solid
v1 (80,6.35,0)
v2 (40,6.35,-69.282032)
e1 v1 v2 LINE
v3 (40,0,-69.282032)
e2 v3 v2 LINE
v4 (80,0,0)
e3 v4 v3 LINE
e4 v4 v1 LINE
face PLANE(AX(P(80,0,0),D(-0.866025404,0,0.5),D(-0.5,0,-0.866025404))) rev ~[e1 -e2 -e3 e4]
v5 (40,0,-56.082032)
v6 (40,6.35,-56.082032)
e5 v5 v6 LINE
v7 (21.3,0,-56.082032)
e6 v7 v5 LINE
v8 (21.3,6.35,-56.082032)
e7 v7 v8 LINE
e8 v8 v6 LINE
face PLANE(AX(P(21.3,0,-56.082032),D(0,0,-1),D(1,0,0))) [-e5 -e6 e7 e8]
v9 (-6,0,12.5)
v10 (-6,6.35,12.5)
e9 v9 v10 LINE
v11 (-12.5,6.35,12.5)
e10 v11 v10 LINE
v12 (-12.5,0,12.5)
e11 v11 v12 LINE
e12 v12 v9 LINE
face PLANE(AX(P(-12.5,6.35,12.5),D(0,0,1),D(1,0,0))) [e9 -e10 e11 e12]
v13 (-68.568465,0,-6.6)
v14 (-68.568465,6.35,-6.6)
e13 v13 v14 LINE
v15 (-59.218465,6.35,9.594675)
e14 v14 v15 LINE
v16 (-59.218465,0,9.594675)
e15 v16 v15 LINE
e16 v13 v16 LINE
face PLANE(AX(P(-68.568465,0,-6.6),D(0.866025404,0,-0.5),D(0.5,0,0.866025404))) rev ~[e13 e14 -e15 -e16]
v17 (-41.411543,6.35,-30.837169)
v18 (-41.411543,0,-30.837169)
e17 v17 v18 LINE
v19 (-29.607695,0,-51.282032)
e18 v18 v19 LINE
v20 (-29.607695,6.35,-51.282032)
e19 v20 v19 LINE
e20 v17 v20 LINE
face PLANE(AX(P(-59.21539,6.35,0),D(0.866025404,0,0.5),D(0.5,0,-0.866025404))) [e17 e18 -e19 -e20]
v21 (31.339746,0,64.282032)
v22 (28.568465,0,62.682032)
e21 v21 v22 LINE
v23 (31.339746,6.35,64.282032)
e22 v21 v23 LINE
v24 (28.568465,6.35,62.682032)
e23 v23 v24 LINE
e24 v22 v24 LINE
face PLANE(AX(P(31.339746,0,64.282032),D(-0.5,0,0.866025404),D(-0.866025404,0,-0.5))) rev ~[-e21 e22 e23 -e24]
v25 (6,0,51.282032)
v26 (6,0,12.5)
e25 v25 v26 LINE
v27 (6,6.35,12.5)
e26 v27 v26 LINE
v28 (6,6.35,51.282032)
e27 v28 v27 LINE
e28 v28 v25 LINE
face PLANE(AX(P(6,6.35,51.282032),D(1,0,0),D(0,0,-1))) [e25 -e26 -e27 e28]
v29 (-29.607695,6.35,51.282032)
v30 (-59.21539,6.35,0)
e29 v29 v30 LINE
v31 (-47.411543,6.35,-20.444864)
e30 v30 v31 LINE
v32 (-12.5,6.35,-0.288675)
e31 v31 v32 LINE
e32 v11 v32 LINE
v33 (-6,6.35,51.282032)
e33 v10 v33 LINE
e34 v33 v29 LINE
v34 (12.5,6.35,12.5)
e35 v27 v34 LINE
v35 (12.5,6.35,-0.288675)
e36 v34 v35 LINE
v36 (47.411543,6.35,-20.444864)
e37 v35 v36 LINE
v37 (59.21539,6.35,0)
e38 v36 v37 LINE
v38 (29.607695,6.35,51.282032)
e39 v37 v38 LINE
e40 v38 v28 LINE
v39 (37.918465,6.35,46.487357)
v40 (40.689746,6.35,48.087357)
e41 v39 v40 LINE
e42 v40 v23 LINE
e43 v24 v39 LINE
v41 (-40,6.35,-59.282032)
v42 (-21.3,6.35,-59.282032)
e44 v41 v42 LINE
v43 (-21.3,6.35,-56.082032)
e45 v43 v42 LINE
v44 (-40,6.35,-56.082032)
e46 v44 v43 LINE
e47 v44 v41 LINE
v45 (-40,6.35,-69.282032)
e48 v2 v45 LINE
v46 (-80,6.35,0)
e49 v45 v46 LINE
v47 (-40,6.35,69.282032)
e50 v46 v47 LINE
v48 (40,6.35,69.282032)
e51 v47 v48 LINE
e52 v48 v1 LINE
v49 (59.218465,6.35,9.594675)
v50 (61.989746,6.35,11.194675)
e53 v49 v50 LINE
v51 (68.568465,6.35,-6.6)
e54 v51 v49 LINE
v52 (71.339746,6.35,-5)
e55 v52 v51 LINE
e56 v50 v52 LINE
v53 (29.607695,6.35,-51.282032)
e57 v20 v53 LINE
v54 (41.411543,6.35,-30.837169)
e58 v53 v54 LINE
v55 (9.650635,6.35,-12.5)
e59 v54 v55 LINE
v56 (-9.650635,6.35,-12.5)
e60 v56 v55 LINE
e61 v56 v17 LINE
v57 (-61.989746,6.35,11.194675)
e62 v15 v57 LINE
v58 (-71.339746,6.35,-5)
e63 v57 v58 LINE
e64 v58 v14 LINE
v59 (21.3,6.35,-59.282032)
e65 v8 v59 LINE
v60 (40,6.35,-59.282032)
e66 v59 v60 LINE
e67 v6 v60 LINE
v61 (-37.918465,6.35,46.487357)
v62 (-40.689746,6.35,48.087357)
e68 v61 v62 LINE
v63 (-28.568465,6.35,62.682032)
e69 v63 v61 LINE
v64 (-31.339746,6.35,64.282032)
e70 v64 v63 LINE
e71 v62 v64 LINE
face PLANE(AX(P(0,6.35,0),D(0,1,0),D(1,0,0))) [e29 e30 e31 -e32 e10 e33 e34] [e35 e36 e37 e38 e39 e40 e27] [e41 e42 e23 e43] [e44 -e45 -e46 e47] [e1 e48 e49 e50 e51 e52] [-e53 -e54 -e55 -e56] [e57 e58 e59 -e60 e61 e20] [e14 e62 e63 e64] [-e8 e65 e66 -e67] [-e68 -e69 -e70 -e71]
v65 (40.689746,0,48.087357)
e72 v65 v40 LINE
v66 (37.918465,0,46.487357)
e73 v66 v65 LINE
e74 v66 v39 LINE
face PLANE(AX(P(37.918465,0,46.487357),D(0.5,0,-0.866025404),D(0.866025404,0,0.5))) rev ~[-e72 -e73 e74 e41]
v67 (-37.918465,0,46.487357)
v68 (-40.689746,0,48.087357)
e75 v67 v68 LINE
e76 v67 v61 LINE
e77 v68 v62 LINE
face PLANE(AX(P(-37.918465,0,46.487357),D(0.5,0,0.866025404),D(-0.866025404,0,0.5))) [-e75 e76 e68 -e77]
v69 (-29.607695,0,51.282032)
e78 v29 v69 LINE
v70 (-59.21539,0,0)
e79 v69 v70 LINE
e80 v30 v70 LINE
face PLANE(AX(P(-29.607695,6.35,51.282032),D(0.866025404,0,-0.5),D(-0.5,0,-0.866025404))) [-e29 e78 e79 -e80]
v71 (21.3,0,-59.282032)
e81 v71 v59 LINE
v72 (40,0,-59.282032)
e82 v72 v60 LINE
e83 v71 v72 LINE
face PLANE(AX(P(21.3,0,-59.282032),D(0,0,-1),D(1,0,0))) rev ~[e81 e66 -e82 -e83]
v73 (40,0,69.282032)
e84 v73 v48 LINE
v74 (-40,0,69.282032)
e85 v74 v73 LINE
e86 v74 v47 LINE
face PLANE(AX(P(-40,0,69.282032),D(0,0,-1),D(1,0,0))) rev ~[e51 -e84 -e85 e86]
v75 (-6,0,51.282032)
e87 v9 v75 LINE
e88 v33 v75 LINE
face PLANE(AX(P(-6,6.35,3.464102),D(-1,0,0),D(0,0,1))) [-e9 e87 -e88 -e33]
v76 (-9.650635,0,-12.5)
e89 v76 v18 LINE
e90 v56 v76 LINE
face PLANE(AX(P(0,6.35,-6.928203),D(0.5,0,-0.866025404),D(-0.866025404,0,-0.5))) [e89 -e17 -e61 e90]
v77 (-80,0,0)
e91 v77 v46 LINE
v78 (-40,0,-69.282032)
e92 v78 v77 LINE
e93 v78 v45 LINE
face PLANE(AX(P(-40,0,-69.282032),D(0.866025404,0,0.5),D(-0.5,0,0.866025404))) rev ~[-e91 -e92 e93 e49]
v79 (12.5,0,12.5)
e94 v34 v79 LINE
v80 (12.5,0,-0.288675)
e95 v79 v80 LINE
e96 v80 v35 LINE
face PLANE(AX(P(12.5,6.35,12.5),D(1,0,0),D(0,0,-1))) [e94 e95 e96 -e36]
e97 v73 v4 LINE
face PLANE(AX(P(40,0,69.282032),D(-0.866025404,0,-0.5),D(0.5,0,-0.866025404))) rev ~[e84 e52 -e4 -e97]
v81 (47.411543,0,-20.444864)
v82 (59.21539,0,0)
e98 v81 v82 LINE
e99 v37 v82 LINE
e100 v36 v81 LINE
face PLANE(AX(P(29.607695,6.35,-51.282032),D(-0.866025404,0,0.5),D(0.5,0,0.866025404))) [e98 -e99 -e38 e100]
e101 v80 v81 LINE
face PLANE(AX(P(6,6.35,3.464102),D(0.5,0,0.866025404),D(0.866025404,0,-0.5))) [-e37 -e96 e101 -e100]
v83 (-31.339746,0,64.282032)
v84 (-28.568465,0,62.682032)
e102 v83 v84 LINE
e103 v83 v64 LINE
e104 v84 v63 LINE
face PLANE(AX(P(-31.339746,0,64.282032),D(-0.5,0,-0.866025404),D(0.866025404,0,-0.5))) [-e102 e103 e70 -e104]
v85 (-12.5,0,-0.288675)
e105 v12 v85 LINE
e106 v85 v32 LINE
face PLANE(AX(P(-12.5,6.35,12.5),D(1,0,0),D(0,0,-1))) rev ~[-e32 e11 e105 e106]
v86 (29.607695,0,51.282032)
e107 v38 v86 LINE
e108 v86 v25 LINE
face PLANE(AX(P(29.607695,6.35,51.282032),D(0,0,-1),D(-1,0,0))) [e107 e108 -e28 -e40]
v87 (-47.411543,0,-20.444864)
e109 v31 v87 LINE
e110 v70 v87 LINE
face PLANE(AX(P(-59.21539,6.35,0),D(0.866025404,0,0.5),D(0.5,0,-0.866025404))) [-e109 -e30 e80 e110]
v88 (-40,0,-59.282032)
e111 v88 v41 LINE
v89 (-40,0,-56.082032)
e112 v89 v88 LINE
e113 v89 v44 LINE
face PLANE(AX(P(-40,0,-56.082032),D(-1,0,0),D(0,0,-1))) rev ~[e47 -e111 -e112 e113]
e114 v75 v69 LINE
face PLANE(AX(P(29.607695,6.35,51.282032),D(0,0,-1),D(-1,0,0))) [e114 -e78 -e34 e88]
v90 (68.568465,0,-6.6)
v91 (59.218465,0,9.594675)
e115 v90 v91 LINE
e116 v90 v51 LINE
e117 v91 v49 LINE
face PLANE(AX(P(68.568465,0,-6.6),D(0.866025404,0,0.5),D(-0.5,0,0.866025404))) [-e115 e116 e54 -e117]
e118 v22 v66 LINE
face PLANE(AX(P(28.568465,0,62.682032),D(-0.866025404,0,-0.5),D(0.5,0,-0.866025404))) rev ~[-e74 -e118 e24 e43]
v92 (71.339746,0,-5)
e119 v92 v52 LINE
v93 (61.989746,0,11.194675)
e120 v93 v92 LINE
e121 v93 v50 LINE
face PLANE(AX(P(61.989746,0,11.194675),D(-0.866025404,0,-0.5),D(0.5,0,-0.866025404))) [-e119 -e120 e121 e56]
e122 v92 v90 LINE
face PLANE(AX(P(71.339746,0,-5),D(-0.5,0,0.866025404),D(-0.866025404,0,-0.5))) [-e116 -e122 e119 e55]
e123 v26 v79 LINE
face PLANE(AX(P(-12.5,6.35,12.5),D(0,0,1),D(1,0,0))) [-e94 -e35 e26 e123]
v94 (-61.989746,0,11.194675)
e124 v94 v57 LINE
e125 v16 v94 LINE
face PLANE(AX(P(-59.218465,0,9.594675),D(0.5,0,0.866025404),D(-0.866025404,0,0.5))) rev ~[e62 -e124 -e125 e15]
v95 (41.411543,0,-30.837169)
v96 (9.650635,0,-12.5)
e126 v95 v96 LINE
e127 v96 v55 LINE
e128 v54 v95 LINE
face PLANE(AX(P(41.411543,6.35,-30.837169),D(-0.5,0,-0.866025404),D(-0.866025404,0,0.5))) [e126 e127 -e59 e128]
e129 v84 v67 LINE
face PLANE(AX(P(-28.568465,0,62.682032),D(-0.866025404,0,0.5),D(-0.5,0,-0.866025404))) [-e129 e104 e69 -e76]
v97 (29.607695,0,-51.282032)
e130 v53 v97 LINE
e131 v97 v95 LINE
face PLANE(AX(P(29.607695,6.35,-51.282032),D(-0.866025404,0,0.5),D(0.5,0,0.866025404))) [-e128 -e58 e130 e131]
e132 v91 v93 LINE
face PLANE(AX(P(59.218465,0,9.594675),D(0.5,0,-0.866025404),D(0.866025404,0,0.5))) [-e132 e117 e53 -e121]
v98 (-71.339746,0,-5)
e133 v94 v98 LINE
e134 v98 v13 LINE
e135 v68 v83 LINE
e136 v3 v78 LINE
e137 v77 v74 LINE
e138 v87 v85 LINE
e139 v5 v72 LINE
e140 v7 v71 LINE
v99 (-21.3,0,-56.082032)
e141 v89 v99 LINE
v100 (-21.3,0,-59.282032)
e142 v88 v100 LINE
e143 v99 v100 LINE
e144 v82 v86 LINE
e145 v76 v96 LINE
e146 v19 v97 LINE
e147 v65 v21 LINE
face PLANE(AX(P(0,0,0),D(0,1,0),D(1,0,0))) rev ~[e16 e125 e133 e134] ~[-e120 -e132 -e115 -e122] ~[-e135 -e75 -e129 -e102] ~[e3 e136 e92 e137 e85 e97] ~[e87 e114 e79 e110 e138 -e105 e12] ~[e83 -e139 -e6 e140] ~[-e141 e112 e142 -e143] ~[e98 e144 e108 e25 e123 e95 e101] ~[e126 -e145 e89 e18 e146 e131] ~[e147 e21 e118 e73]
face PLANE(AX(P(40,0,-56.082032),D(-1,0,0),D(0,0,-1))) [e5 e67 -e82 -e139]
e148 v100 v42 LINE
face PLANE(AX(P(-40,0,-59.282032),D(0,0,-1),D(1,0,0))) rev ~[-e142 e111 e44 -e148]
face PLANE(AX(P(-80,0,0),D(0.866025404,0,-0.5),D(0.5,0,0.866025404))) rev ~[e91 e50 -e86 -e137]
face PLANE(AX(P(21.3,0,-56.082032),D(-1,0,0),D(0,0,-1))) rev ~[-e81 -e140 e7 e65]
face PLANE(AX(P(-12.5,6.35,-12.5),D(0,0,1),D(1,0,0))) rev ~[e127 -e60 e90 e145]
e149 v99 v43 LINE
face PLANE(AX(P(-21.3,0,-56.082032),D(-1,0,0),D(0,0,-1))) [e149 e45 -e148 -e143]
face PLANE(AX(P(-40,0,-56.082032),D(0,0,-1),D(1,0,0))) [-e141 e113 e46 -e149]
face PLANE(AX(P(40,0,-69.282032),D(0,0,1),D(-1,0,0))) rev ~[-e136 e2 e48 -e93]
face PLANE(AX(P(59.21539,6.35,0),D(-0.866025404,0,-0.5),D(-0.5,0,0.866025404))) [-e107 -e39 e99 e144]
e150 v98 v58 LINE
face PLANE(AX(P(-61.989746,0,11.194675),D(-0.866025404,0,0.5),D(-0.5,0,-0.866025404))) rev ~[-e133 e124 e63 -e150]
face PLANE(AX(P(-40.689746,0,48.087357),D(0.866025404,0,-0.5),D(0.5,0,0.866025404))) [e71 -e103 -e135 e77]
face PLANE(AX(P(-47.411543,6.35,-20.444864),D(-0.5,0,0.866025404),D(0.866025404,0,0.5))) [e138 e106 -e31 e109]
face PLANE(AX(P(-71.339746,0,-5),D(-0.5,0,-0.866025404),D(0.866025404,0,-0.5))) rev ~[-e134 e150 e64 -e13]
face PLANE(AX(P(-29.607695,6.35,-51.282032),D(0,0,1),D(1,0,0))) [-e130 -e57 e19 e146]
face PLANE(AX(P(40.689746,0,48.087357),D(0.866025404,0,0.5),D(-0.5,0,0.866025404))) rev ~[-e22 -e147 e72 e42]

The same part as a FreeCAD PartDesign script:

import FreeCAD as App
import Part
import Sketcher
from FreeCAD import Vector
Q = App.Units.Quantity


def add_polygon(sketch, points):
    """Adds a closed chain of lines whose ends are joined by coincident constraints."""
    first, n = sketch.GeometryCount, len(points)
    for a, b in zip(points, points[1:] + points[:1]):
        sketch.addGeometry(Part.LineSegment(App.Vector(*a, 0), App.Vector(*b, 0)), False)
    for i in range(n):
        sketch.addConstraint(Sketcher.Constraint("Coincident", first + i, 2, first + (i + 1) % n, 1))

doc = App.newDocument("Part")
params = doc.addObject("Spreadsheet::Sheet", "Params")
for row, (alias, value) in enumerate([
    ("sketch1_width", "80 mm"),
    ("sketch1_length", "80 mm"),
    ("sketch1_width2", "18.7 mm"),
    ("sketch1_height", "3.2 mm"),
    ("sketch1_length2", "3.2 mm"),
    ("pad1_length", "6.35 mm"),
    ("pocket1_length", "6.35 mm"),
    ("sketch3_width", "12 mm"),
    ("pad2_length", "6.35 mm"),
    ("sketch4_width", "25 mm"),
    ("pad3_length", "6.35 mm"),
], start=1):
    params.set(f"A{row}", alias)
    params.set(f"B{row}", "=" + value)
    params.setAlias(f"B{row}", alias)

body = doc.addObject("PartDesign::Body", "Body")

# Sketch on XZ plane
sketch1 = body.newObject("Sketcher::SketchObject", "Sketch")
sketch1.AttachmentSupport = (doc.getObject("XZ_Plane"), [""])
sketch1.MapMode = "FlatFace"
add_polygon(sketch1, [(40, 69.282032), (80, 0), (40, -69.282032), (-40, -69.282032), (-80, 0), (-40, 69.282032)])  # lines 0-5
add_polygon(sketch1, [(-28.568465, 62.682032), (-31.339746, 64.282032), (-40.689746, 48.087357), (-37.918465, 46.487357)])  # lines 6-9
add_polygon(sketch1, [(31.339746, 64.282032), (28.568465, 62.682032), (37.918465, 46.487357), (40.689746, 48.087357)])  # lines 10-13
add_polygon(sketch1, [(-71.339746, -5), (-68.568465, -6.6), (-59.218465, 9.594675), (-61.989746, 11.194675)])  # lines 14-17
add_polygon(sketch1, [(-21.3, -56.082032), (-40, -56.082032), (-40, -59.282032), (-21.3, -59.282032)])  # lines 18-21
add_polygon(sketch1, [(68.568465, -6.6), (71.339746, -5), (61.989746, 11.194675), (59.218465, 9.594675)])  # lines 22-25
add_polygon(sketch1, [(40, -56.082032), (21.3, -56.082032), (21.3, -59.282032), (40, -59.282032)])  # lines 26-29
sketch1.addConstraint([
    Sketcher.Constraint("Horizontal", 2),
    Sketcher.Constraint("Horizontal", 5),
    Sketcher.Constraint("Horizontal", 18),
    Sketcher.Constraint("Vertical", 19),
    Sketcher.Constraint("Horizontal", 20),
    Sketcher.Constraint("Vertical", 21),
    Sketcher.Constraint("Horizontal", 26),
    Sketcher.Constraint("Vertical", 27),
    Sketcher.Constraint("Horizontal", 28),
    Sketcher.Constraint("Vertical", 29),
    Sketcher.Constraint("Symmetric", 0, 2, 3, 2, -1, 1),
    Sketcher.Constraint("Symmetric", 1, 2, 4, 2, -1, 1),
    Sketcher.Constraint("Symmetric", 9, 2, 10, 2, -2),
    Sketcher.Constraint("Symmetric", 8, 2, 11, 2, -2),
    Sketcher.Constraint("Symmetric", 7, 2, 12, 2, -2),
    Sketcher.Constraint("Symmetric", 6, 2, 13, 2, -2),
    Sketcher.Constraint("Symmetric", 17, 2, 22, 2, -2),
    Sketcher.Constraint("Symmetric", 16, 2, 23, 2, -2),
    Sketcher.Constraint("Symmetric", 15, 2, 24, 2, -2),
    Sketcher.Constraint("Symmetric", 14, 2, 25, 2, -2),
    Sketcher.Constraint("Symmetric", 21, 2, 26, 2, -2),
    Sketcher.Constraint("Symmetric", 19, 2, 28, 2, -2),
    Sketcher.Constraint("PointOnObject", 0, 2, -1),
    Sketcher.Constraint("Parallel", 0, 3),
    Sketcher.Constraint("Perpendicular", 4, 6),
    Sketcher.Constraint("Perpendicular", 6, 7),
    Sketcher.Constraint("Perpendicular", 7, 8),
    Sketcher.Constraint("Perpendicular", 8, 9),
    Sketcher.Constraint("Perpendicular", 3, 10),
    Sketcher.Constraint("Perpendicular", 9, 14),
    Sketcher.Constraint("Perpendicular", 14, 15),
    Sketcher.Constraint("Perpendicular", 15, 16),
    Sketcher.Constraint("Perpendicular", 16, 17),
    Sketcher.Constraint("Vertical", 4, 2, 18, 2),
    Sketcher.Constraint("Equal", 12, 14),
    Sketcher.Constraint("Equal", 13, 15),
    Sketcher.Constraint("DistanceX", 2, 2, 2, 1, Q("80 mm")),
    Sketcher.Constraint("Angle", 0, Q("-60 deg")),
    Sketcher.Constraint("Distance", 0, Q("80 mm")),
    Sketcher.Constraint("DistanceX", 18, 2, 18, 1, Q("18.7 mm")),
    Sketcher.Constraint("DistanceY", 19, 2, 19, 1, Q("3.2 mm")),
    Sketcher.Constraint("DistanceY", 17, 2, -1, 1, Q("5 mm")),
    Sketcher.Constraint("DistanceY", 6, 2, 4, 2, Q("5 mm")),
    Sketcher.Constraint("DistanceX", 14, 2, 9, 2, Q("40 mm")),
    Sketcher.Constraint("DistanceY", 2, 2, 19, 2, Q("10 mm")),
    Sketcher.Constraint("Distance", 6, Q("3.2 mm")),
    Sketcher.Constraint("Distance", 7, Q("18.7 mm")),
    Sketcher.Constraint("DistanceX", 9, 2, 10, 2, Q("57.136929 mm")),
])
sketch1.setExpression("Constraints[66]", "Params.sketch1_width")
sketch1.setExpression("Constraints[68]", "Params.sketch1_length")
sketch1.setExpression("Constraints[69]", "Params.sketch1_width2")
sketch1.setExpression("Constraints[70]", "Params.sketch1_height")
sketch1.setExpression("Constraints[75]", "Params.sketch1_length2")
pad1 = body.newObject("PartDesign::Pad", "Pad")
pad1.Profile = sketch1
pad1.setExpression("Length", "Params.pad1_length")
pad1.Reversed = True

# Sketch on XZ plane
sketch2 = body.newObject("Sketcher::SketchObject", "Sketch001")
sketch2.AttachmentSupport = (doc.getObject("XZ_Plane"), [""])
sketch2.MapMode = "FlatFace"
sketch2.AttachmentOffset = App.Placement(Vector(0, 0, -6.35), App.Rotation())
add_polygon(sketch2, [(-29.607695, -51.282032), (-59.21539, 0), (-29.607695, 51.282032), (29.607695, 51.282032), (59.21539, 0), (29.607695, -51.282032)])  # lines 0-5
sketch2.addConstraint([
    Sketcher.Constraint("Horizontal", 2),
    Sketcher.Constraint("Horizontal", 5),
    Sketcher.Constraint("Symmetric", 0, 2, 3, 2, -1, 1),
    Sketcher.Constraint("Symmetric", 1, 2, 4, 2, -1, 1),
    Sketcher.Constraint("PointOnObject", 0, 2, -1),
    Sketcher.Constraint("Parallel", 0, 3),
    Sketcher.Constraint("Vertical", 2, 2, 4, 2),
    Sketcher.Constraint("Angle", 0, Q("120 deg")),
    Sketcher.Constraint("DistanceX", 2, 1, 2, 2, Q("59.21539 mm")),
    Sketcher.Constraint("Distance", 0, Q("59.21539 mm")),
])
pocket1 = body.newObject("PartDesign::Pocket", "Pocket")
pocket1.Profile = sketch2
pocket1.setExpression("Length", "Params.pocket1_length")
pocket1.Reversed = True

# Sketch on XZ plane
sketch3 = body.newObject("Sketcher::SketchObject", "Sketch002")
sketch3.AttachmentSupport = (doc.getObject("XZ_Plane"), [""])
sketch3.MapMode = "FlatFace"
sketch3.AttachmentOffset = App.Placement(Vector(0, 0, -6.35), App.Rotation())
add_polygon(sketch3, [(-47.411543, -20.444864), (-6, 3.464102), (-6, 51.282032), (6, 51.282032), (6, 3.464102), (47.411543, -20.444864), (41.411543, -30.837169), (0, -6.928203), (-41.411543, -30.837169)])  # lines 0-8
sketch3.addConstraint([
    Sketcher.Constraint("Vertical", 1),
    Sketcher.Constraint("Horizontal", 2),
    Sketcher.Constraint("Vertical", 3),
    Sketcher.Constraint("Symmetric", 0, 2, 3, 2, -2),
    Sketcher.Constraint("Symmetric", 5, 2, 7, 2, -2),
    Sketcher.Constraint("Symmetric", 4, 2, 8, 2, -2),
    Sketcher.Constraint("PointOnObject", 6, 2, -2),
    Sketcher.Constraint("Perpendicular", 4, 5),
    Sketcher.Constraint("Perpendicular", 5, 6),
    Sketcher.Constraint("Equal", 4, 6),
    Sketcher.Constraint("DistanceX", 2, 1, 2, 2, Q("12 mm")),
    Sketcher.Constraint("Angle", 0, Q("30 deg")),
    Sketcher.Constraint("DistanceY", 1, 1, 1, 2, Q("47.817931 mm")),
    Sketcher.Constraint("DistanceY", -1, 1, 0, 2, Q("3.464102 mm")),
    Sketcher.Constraint("DistanceY", 5, 2, 2, 2, Q("82.119201 mm")),
])
sketch3.setExpression("Constraints[19]", "Params.sketch3_width")
pad2 = body.newObject("PartDesign::Pad", "Pad001")
pad2.Profile = sketch3
pad2.setExpression("Length", "Params.pad2_length")

# Sketch on XZ plane
sketch4 = body.newObject("Sketcher::SketchObject", "Sketch003")
sketch4.AttachmentSupport = (doc.getObject("XZ_Plane"), [""])
sketch4.MapMode = "FlatFace"
sketch4.AttachmentOffset = App.Placement(Vector(0, 0, -6.35), App.Rotation())
add_polygon(sketch4, [(-12.5, -12.5), (-12.5, 12.5), (12.5, 12.5), (12.5, -12.5)])  # lines 0-3
sketch4.addConstraint([
    Sketcher.Constraint("Vertical", 0),
    Sketcher.Constraint("Horizontal", 1),
    Sketcher.Constraint("Vertical", 2),
    Sketcher.Constraint("Horizontal", 3),
    Sketcher.Constraint("Symmetric", 0, 2, 2, 2, -1, 1),
    Sketcher.Constraint("Equal", 3, 0),
    Sketcher.Constraint("DistanceX", 1, 1, 1, 2, Q("25 mm")),
])
sketch4.setExpression("Constraints[10]", "Params.sketch4_width")
pad3 = body.newObject("PartDesign::Pad", "Pad002")
pad3.Profile = sketch4
pad3.setExpression("Length", "Params.pad3_length")

doc.recompute()
